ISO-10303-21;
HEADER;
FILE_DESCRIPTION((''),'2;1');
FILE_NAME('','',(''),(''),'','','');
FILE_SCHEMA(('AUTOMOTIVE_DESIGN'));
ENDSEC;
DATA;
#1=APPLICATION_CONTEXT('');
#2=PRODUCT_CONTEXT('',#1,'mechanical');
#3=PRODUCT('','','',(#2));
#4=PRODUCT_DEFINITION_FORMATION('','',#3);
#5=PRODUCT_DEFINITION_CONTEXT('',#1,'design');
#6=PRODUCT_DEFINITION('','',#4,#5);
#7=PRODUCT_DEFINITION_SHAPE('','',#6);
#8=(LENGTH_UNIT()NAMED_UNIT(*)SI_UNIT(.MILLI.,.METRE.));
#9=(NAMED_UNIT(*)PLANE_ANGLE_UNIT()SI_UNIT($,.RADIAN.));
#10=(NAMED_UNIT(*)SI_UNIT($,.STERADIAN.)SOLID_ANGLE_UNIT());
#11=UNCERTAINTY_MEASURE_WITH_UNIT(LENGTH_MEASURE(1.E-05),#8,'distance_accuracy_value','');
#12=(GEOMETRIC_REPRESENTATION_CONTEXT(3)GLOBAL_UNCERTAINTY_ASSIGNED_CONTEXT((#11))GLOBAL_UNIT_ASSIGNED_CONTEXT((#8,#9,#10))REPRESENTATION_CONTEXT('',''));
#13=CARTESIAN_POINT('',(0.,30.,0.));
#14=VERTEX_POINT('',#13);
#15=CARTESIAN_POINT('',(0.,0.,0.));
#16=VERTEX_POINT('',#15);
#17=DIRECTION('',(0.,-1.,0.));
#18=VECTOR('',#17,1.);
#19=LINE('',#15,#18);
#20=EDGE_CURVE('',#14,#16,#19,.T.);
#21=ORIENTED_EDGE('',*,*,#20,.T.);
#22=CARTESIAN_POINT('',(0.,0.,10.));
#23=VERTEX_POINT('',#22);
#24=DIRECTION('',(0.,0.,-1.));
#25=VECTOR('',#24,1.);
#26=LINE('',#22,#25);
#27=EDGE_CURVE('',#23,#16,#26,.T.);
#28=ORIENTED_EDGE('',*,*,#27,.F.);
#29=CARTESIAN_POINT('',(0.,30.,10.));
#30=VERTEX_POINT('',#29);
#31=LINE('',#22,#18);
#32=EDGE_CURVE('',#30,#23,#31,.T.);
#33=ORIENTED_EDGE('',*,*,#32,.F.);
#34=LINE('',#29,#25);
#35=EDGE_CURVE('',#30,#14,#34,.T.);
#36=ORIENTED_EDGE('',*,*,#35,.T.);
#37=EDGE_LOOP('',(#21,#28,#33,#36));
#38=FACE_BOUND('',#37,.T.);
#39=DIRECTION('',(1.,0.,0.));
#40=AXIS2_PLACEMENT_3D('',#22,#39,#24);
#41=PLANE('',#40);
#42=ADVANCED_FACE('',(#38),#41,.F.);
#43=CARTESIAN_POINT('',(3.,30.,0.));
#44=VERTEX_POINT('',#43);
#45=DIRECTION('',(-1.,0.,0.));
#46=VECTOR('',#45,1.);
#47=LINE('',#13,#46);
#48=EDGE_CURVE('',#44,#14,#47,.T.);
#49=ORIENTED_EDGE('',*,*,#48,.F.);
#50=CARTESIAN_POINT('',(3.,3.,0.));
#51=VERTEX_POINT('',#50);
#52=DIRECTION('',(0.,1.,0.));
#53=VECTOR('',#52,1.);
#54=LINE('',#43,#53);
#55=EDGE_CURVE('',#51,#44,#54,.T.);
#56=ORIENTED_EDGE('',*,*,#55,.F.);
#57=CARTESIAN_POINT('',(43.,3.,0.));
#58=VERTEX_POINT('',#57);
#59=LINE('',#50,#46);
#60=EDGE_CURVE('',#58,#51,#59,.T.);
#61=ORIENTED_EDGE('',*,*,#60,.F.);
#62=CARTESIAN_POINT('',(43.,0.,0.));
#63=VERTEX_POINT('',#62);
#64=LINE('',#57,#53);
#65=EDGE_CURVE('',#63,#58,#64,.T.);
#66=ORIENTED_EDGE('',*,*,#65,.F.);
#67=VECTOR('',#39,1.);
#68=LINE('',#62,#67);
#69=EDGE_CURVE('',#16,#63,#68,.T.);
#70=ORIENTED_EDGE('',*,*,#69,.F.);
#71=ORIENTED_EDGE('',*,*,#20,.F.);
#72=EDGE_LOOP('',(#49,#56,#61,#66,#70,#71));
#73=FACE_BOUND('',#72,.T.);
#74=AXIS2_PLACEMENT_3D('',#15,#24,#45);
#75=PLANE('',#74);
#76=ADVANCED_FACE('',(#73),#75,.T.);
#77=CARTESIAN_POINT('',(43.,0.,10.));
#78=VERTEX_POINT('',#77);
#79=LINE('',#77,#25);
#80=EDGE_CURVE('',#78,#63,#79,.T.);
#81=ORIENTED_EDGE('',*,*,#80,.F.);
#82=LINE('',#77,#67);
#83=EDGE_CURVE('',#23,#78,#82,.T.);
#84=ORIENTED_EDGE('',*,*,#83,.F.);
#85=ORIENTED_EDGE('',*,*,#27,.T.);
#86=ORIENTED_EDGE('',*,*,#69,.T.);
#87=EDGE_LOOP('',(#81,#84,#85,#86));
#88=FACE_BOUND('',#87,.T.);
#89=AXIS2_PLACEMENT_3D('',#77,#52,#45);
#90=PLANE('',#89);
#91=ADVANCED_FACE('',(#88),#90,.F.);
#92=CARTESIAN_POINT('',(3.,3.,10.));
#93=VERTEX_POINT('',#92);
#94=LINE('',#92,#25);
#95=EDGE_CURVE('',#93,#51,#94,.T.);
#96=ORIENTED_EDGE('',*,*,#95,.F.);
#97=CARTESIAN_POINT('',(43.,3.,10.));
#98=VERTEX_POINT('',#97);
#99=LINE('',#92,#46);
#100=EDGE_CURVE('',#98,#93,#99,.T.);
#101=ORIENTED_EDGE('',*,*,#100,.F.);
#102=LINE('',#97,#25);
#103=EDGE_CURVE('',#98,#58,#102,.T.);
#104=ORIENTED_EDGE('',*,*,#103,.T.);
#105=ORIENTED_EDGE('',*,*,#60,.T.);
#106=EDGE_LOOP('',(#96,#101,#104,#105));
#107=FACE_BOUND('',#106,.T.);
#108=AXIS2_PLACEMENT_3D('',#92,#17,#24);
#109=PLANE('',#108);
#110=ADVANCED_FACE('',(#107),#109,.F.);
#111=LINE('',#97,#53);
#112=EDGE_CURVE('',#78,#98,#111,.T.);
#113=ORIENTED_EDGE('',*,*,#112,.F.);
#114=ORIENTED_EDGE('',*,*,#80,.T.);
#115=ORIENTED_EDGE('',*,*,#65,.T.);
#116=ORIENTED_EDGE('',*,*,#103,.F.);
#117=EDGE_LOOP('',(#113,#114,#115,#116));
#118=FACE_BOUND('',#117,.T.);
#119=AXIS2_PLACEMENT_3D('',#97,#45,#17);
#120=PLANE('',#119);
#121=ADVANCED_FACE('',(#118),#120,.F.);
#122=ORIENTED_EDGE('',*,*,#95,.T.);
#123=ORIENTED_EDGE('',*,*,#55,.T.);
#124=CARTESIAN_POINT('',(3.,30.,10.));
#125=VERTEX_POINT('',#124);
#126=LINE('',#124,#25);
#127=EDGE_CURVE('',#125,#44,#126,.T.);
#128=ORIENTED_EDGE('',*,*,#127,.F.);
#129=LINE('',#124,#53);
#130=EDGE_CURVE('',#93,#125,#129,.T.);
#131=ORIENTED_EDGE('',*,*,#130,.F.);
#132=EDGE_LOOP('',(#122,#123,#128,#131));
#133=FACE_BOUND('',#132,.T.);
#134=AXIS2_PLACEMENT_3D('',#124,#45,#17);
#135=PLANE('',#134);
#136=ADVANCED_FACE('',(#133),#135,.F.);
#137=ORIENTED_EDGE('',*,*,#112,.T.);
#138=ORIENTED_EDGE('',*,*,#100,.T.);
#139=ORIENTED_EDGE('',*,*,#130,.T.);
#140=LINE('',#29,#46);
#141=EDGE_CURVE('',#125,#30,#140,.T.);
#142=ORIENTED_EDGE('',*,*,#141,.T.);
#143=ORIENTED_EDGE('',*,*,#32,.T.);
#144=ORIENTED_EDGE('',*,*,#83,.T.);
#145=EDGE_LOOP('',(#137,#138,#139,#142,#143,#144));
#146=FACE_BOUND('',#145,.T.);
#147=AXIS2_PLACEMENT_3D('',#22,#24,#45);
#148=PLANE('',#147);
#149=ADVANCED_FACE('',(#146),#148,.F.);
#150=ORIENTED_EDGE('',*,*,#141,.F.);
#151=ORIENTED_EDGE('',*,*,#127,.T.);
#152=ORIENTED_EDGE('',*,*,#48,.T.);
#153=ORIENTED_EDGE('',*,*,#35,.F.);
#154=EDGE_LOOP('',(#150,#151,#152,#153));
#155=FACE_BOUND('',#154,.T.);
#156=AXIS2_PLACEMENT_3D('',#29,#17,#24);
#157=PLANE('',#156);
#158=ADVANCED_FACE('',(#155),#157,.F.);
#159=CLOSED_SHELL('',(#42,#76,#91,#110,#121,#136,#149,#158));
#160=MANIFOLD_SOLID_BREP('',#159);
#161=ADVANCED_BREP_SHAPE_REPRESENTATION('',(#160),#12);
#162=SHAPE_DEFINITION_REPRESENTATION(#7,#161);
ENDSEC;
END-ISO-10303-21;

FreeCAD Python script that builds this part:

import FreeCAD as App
import Part
import Sketcher


def add_polygon(sketch, points):
    """Adds a closed chain of lines whose ends are joined by coincident constraints."""
    first, n = sketch.GeometryCount, len(points)
    for a, b in zip(points, points[1:] + points[:1]):
        sketch.addGeometry(Part.LineSegment(App.Vector(*a, 0), App.Vector(*b, 0)), False)
    for i in range(n):
        sketch.addConstraint(Sketcher.Constraint("Coincident", first + i, 2, first + (i + 1) % n, 1))

doc = App.newDocument("Part")
body = doc.addObject("PartDesign::Body", "Body")

# Sketch on XY plane
sketch1 = doc.addObject("Sketcher::SketchObject", "Sketch")
body.addObject(sketch1)
sketch1.AttachmentSupport = (doc.XY_Plane, [""])
sketch1.MapMode = "FlatFace"
add_polygon(sketch1, [(0, 30), (0, 0), (43, 0), (43, 3), (3, 3), (3, 30)])  # lines 0-5
sketch1.addConstraint([
    Sketcher.Constraint("Vertical", 0),
    Sketcher.Constraint("Horizontal", 1),
    Sketcher.Constraint("Vertical", 2),
    Sketcher.Constraint("Horizontal", 3),
    Sketcher.Constraint("Vertical", 4),
    Sketcher.Constraint("Horizontal", 5),
    Sketcher.Constraint("Coincident", 0, 2, -1, 1),
    Sketcher.Constraint("Equal", 5, 2),
    Sketcher.Constraint("DistanceX", 1, 1, 1, 2, 43.0),
    Sketcher.Constraint("DistanceX", 3, 2, 3, 1, 40.0),
    Sketcher.Constraint("DistanceY", 0, 2, 0, 1, 30.0),
])
pad1 = doc.addObject("PartDesign::Pad", "Pad")
body.addObject(pad1)
pad1.Profile = sketch1
pad1.Length = 10

doc.recompute()
